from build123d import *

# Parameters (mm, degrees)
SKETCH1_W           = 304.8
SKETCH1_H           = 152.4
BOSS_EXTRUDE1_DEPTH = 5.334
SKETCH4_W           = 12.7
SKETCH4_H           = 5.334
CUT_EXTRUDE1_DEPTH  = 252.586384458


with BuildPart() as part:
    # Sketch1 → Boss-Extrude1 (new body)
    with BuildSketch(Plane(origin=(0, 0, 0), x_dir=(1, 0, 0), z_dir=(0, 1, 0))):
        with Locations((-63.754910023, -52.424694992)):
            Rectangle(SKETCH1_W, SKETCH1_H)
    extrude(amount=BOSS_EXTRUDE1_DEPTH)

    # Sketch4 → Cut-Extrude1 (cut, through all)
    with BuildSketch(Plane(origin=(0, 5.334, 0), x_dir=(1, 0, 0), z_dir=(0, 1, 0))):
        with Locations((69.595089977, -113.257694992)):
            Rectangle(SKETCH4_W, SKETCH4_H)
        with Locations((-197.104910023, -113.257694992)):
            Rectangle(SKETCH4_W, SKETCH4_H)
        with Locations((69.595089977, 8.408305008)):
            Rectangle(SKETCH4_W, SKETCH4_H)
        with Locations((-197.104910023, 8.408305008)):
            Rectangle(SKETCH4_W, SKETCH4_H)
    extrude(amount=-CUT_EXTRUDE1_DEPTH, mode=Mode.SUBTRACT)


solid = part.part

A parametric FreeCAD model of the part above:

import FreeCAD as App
import Part
import Sketcher
from FreeCAD import Vector
Q = App.Units.Quantity

doc = App.newDocument("Part")
body = doc.addObject("PartDesign::Body", "Body")

# Sketch on XZ plane
sketch1 = doc.addObject("Sketcher::SketchObject", "Sketch")
body.addObject(sketch1)
sketch1.AttachmentSupport = (doc.XZ_Plane, [""])
sketch1.MapMode = "FlatFace"
sketch1.addGeometry([
    Part.LineSegment(Vector(-216, -24, 0), Vector(-216, 129, 0)),
    Part.LineSegment(Vector(-216, 129, 0), Vector(89, 129, 0)),
    Part.LineSegment(Vector(89, 129, 0), Vector(89, -24, 0)),
    Part.LineSegment(Vector(89, -24, 0), Vector(-216, -24, 0)),
], False)
sketch1.addConstraint([
    Sketcher.Constraint("Coincident", 0, 2, 1, 1),
    Sketcher.Constraint("Coincident", 1, 2, 2, 1),
    Sketcher.Constraint("Coincident", 2, 2, 3, 1),
    Sketcher.Constraint("Coincident", 3, 2, 0, 1),
    Sketcher.Constraint("Vertical", 0),
    Sketcher.Constraint("Horizontal", 1),
    Sketcher.Constraint("Vertical", 2),
    Sketcher.Constraint("Horizontal", 3),
    Sketcher.Constraint("DistanceX", 1, 1, 1, 2, Q("12 in")),
    Sketcher.Constraint("DistanceY", 0, 1, 0, 2, Q("6 in")),
    Sketcher.Constraint("DistanceX", 0, 2, -1, 1, Q("216.15491 mm")),
    Sketcher.Constraint("DistanceY", -1, 1, 0, 2, Q("128.624695 mm")),
])
pad1 = doc.addObject("PartDesign::Pad", "Pad")
body.addObject(pad1)
pad1.Profile = sketch1
pad1.Length = Q("0.21 in")
pad1.Reversed = True

# Sketch on XZ plane
sketch2 = doc.addObject("Sketcher::SketchObject", "Sketch001")
body.addObject(sketch2)
sketch2.AttachmentSupport = (doc.XZ_Plane, [""])
sketch2.MapMode = "FlatFace"
sketch2.AttachmentOffset = App.Placement(Vector(0, 0, -0.21 * 25.4), App.Rotation())
sketch2.addGeometry([
    Part.LineSegment(Vector(63, 111, 0), Vector(63, 116, 0)),  # 0
    Part.LineSegment(Vector(63, 116, 0), Vector(76, 116, 0)),  # 1
    Part.LineSegment(Vector(76, 116, 0), Vector(76, 111, 0)),  # 2
    Part.LineSegment(Vector(76, 111, 0), Vector(63, 111, 0)),  # 3
    Part.LineSegment(Vector(-203, 111, 0), Vector(-203, 116, 0)),  # 4
    Part.LineSegment(Vector(-203, 116, 0), Vector(-191, 116, 0)),  # 5
    Part.LineSegment(Vector(-191, 116, 0), Vector(-191, 111, 0)),  # 6
    Part.LineSegment(Vector(-191, 111, 0), Vector(-203, 111, 0)),  # 7
    Part.LineSegment(Vector(63, -11, 0), Vector(63, -6, 0)),  # 8
    Part.LineSegment(Vector(63, -6, 0), Vector(76, -6, 0)),  # 9
    Part.LineSegment(Vector(76, -6, 0), Vector(76, -11, 0)),  # 10
    Part.LineSegment(Vector(76, -11, 0), Vector(63, -11, 0)),  # 11
    Part.LineSegment(Vector(-203, -11, 0), Vector(-203, -6, 0)),  # 12
    Part.LineSegment(Vector(-203, -6, 0), Vector(-191, -6, 0)),  # 13
    Part.LineSegment(Vector(-191, -6, 0), Vector(-191, -11, 0)),  # 14
    Part.LineSegment(Vector(-191, -11, 0), Vector(-203, -11, 0)),  # 15
], False)
sketch2.addConstraint([
    Sketcher.Constraint("Coincident", 0, 2, 1, 1),
    Sketcher.Constraint("Coincident", 1, 2, 2, 1),
    Sketcher.Constraint("Coincident", 2, 2, 3, 1),
    Sketcher.Constraint("Coincident", 3, 2, 0, 1),
    Sketcher.Constraint("Coincident", 4, 2, 5, 1),
    Sketcher.Constraint("Coincident", 5, 2, 6, 1),
    Sketcher.Constraint("Coincident", 6, 2, 7, 1),
    Sketcher.Constraint("Coincident", 7, 2, 4, 1),
    Sketcher.Constraint("Coincident", 8, 2, 9, 1),
    Sketcher.Constraint("Coincident", 9, 2, 10, 1),
    Sketcher.Constraint("Coincident", 10, 2, 11, 1),
    Sketcher.Constraint("Coincident", 11, 2, 8, 1),
    Sketcher.Constraint("Coincident", 12, 2, 13, 1),
    Sketcher.Constraint("Coincident", 13, 2, 14, 1),
    Sketcher.Constraint("Coincident", 14, 2, 15, 1),
    Sketcher.Constraint("Coincident", 15, 2, 12, 1),
    Sketcher.Constraint("Vertical", 0),
    Sketcher.Constraint("Horizontal", 1),
    Sketcher.Constraint("Vertical", 2),
    Sketcher.Constraint("Horizontal", 3),
    Sketcher.Constraint("Vertical", 4),
    Sketcher.Constraint("Horizontal", 5),
    Sketcher.Constraint("Vertical", 6),
    Sketcher.Constraint("Horizontal", 7),
    Sketcher.Constraint("Vertical", 8),
    Sketcher.Constraint("Horizontal", 9),
    Sketcher.Constraint("Vertical", 10),
    Sketcher.Constraint("Horizontal", 11),
    Sketcher.Constraint("Vertical", 12),
    Sketcher.Constraint("Horizontal", 13),
    Sketcher.Constraint("Vertical", 14),
    Sketcher.Constraint("Horizontal", 15),
    Sketcher.Constraint("Horizontal", 1, 2, 4, 2),
    Sketcher.Constraint("Horizontal", 3, 2, 6, 2),
    Sketcher.Constraint("Horizontal", 9, 2, 12, 2),
    Sketcher.Constraint("Horizontal", 11, 2, 14, 2),
    Sketcher.Constraint("Vertical", 3, 2, 8, 2),
    Sketcher.Constraint("Vertical", 2, 2, 9, 2),
    Sketcher.Constraint("Vertical", 7, 2, 12, 2),
    Sketcher.Constraint("Vertical", 6, 2, 13, 2),
    Sketcher.Constraint("Equal", 3, 5),
    Sketcher.Constraint("Equal", 6, 8),
    Sketcher.Constraint("DistanceX", 1, 1, 1, 2, Q("0.5 in")),
    Sketcher.Constraint("DistanceX", 4, 2, 1, 2, Q("11 in")),
    Sketcher.Constraint("DistanceY", 10, 2, 1, 2, Q("5 in")),
    Sketcher.Constraint("DistanceY", 0, 1, 0, 2, Q("0.21 in")),
    Sketcher.Constraint("DistanceX", -1, 1, 0, 2, Q("63.24509 mm")),
    Sketcher.Constraint("DistanceY", -1, 1, 0, 2, Q("115.924695 mm")),
])
pocket1 = doc.addObject("PartDesign::Pocket", "Pocket")
body.addObject(pocket1)
pocket1.Profile = sketch2
pocket1.Type = "ThroughAll"
pocket1.Reversed = True

doc.recompute()
